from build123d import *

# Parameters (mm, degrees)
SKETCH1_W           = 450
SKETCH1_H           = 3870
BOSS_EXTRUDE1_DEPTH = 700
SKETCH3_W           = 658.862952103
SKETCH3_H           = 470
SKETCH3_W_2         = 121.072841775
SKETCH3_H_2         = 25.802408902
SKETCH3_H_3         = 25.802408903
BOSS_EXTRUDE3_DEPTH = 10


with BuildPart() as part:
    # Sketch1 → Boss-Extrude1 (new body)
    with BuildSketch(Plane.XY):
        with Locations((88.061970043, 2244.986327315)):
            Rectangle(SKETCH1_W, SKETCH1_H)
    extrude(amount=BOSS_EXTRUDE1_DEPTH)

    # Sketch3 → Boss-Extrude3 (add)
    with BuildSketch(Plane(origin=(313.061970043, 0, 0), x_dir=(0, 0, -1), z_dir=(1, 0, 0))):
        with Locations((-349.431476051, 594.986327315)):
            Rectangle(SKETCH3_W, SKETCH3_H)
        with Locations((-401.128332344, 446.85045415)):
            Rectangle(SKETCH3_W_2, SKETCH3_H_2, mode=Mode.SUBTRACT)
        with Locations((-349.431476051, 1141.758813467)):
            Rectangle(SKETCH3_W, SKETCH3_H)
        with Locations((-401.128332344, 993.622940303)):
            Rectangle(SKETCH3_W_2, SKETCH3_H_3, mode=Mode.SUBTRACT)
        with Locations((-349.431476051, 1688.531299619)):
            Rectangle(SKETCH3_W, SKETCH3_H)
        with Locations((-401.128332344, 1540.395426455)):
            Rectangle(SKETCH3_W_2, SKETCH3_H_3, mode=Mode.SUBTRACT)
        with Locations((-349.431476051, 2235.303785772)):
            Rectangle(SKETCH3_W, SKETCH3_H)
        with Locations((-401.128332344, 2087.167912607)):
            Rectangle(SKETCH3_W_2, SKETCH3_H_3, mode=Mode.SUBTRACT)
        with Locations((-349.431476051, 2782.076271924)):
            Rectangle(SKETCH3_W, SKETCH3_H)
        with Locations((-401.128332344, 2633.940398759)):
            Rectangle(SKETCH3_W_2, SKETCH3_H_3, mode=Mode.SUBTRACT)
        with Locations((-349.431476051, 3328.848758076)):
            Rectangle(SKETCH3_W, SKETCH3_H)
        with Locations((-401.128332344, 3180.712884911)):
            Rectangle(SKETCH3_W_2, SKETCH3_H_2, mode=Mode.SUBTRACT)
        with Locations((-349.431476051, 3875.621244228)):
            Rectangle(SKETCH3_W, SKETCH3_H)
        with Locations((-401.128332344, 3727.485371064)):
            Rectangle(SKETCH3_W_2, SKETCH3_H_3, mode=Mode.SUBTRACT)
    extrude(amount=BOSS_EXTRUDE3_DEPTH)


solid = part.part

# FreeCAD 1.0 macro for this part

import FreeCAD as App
import Part
import Sketcher

V = App.Vector
Q = App.Units.Quantity

doc = App.newDocument("Part")
body = doc.addObject("PartDesign::Body", "Body")

# Sketch on XY plane
sketch1 = body.newObject("Sketcher::SketchObject", "Sketch")
sketch1.AttachmentSupport = (doc.getObject("XY_Plane"), [""])
sketch1.MapMode = "FlatFace"
sketch1.addGeometry(Part.LineSegment(V(-137, 4180, 0), V(-137, 310, 0)), False)
sketch1.addGeometry(Part.LineSegment(V(-137, 310, 0), V(313, 310, 0)), False)
sketch1.addGeometry(Part.LineSegment(V(313, 310, 0), V(313, 4180, 0)), False)
sketch1.addGeometry(Part.LineSegment(V(313, 4180, 0), V(-137, 4180, 0)), False)
sketch1.addConstraint(Sketcher.Constraint("Coincident", 0, 2, 1, 1))
sketch1.addConstraint(Sketcher.Constraint("Coincident", 1, 2, 2, 1))
sketch1.addConstraint(Sketcher.Constraint("Coincident", 2, 2, 3, 1))
sketch1.addConstraint(Sketcher.Constraint("Coincident", 3, 2, 0, 1))
sketch1.addConstraint(Sketcher.Constraint("Vertical", 0))
sketch1.addConstraint(Sketcher.Constraint("Horizontal", 1))
sketch1.addConstraint(Sketcher.Constraint("Vertical", 2))
sketch1.addConstraint(Sketcher.Constraint("Horizontal", 3))
sketch1.addConstraint(Sketcher.Constraint("DistanceX", 1, 1, 1, 2, Q("450 mm")))
sketch1.addConstraint(Sketcher.Constraint("DistanceY", 0, 2, 0, 1, Q("3870 mm")))
sketch1.addConstraint(Sketcher.Constraint("DistanceX", 0, 2, -1, 1, Q("136.93803 mm")))
sketch1.addConstraint(Sketcher.Constraint("DistanceY", -1, 1, 0, 2, Q("309.986327 mm")))
pad1 = body.newObject("PartDesign::Pad", "Pad")
pad1.Profile = sketch1
pad1.Length = 700

# Sketch on YZ plane
sketch2 = body.newObject("Sketcher::SketchObject", "Sketch001")
sketch2.AttachmentSupport = (doc.getObject("YZ_Plane"), [""])
sketch2.MapMode = "FlatFace"
sketch2.AttachmentOffset = App.Placement(V(0, 0, 313.06197), App.Rotation())
sketch2.addGeometry(Part.LineSegment(V(830, 679, 0), V(360, 679, 0)), False)
sketch2.addGeometry(Part.LineSegment(V(360, 679, 0), V(360, 20, 0)), False)
sketch2.addGeometry(Part.LineSegment(V(360, 20, 0), V(830, 20, 0)), False)
sketch2.addGeometry(Part.LineSegment(V(830, 20, 0), V(830, 679, 0)), False)
sketch2.addGeometry(Part.LineSegment(V(434, 341, 0), V(434, 462, 0)), False)
sketch2.addGeometry(Part.LineSegment(V(434, 462, 0), V(460, 462, 0)), False)
sketch2.addGeometry(Part.LineSegment(V(460, 462, 0), V(460, 341, 0)), False)
sketch2.addGeometry(Part.LineSegment(V(460, 341, 0), V(434, 341, 0)), False)
sketch2.addGeometry(Part.LineSegment(V(1377, 679, 0), V(907, 679, 0)), False)
sketch2.addGeometry(Part.LineSegment(V(907, 679, 0), V(907, 20, 0)), False)
sketch2.addGeometry(Part.LineSegment(V(907, 20, 0), V(1377, 20, 0)), False)
sketch2.addGeometry(Part.LineSegment(V(1377, 20, 0), V(1377, 679, 0)), False)
sketch2.addGeometry(Part.LineSegment(V(981, 341, 0), V(981, 462, 0)), False)
sketch2.addGeometry(Part.LineSegment(V(981, 462, 0), V(1007, 462, 0)), False)
sketch2.addGeometry(Part.LineSegment(V(1007, 462, 0), V(1007, 341, 0)), False)
sketch2.addGeometry(Part.LineSegment(V(1007, 341, 0), V(981, 341, 0)), False)
sketch2.addGeometry(Part.LineSegment(V(1924, 679, 0), V(1454, 679, 0)), False)
sketch2.addGeometry(Part.LineSegment(V(1454, 679, 0), V(1454, 20, 0)), False)
sketch2.addGeometry(Part.LineSegment(V(1454, 20, 0), V(1924, 20, 0)), False)
sketch2.addGeometry(Part.LineSegment(V(1924, 20, 0), V(1924, 679, 0)), False)
sketch2.addGeometry(Part.LineSegment(V(1527, 341, 0), V(1527, 462, 0)), False)
sketch2.addGeometry(Part.LineSegment(V(1527, 462, 0), V(1553, 462, 0)), False)
sketch2.addGeometry(Part.LineSegment(V(1553, 462, 0), V(1553, 341, 0)), False)
sketch2.addGeometry(Part.LineSegment(V(1553, 341, 0), V(1527, 341, 0)), False)
sketch2.addGeometry(Part.LineSegment(V(2470, 679, 0), V(2000, 679, 0)), False)
sketch2.addGeometry(Part.LineSegment(V(2000, 679, 0), V(2000, 20, 0)), False)
sketch2.addGeometry(Part.LineSegment(V(2000, 20, 0), V(2470, 20, 0)), False)
sketch2.addGeometry(Part.LineSegment(V(2470, 20, 0), V(2470, 679, 0)), False)
sketch2.addGeometry(Part.LineSegment(V(2074, 341, 0), V(2074, 462, 0)), False)
sketch2.addGeometry(Part.LineSegment(V(2074, 462, 0), V(2100, 462, 0)), False)
sketch2.addGeometry(Part.LineSegment(V(2100, 462, 0), V(2100, 341, 0)), False)
sketch2.addGeometry(Part.LineSegment(V(2100, 341, 0), V(2074, 341, 0)), False)
sketch2.addGeometry(Part.LineSegment(V(3017, 679, 0), V(2547, 679, 0)), False)
sketch2.addGeometry(Part.LineSegment(V(2547, 679, 0), V(2547, 20, 0)), False)
sketch2.addGeometry(Part.LineSegment(V(2547, 20, 0), V(3017, 20, 0)), False)
sketch2.addGeometry(Part.LineSegment(V(3017, 20, 0), V(3017, 679, 0)), False)
sketch2.addGeometry(Part.LineSegment(V(2621, 341, 0), V(2621, 462, 0)), False)
sketch2.addGeometry(Part.LineSegment(V(2621, 462, 0), V(2647, 462, 0)), False)
sketch2.addGeometry(Part.LineSegment(V(2647, 462, 0), V(2647, 341, 0)), False)
sketch2.addGeometry(Part.LineSegment(V(2647, 341, 0), V(2621, 341, 0)), False)
sketch2.addGeometry(Part.LineSegment(V(3564, 679, 0), V(3094, 679, 0)), False)
sketch2.addGeometry(Part.LineSegment(V(3094, 679, 0), V(3094, 20, 0)), False)
sketch2.addGeometry(Part.LineSegment(V(3094, 20, 0), V(3564, 20, 0)), False)
sketch2.addGeometry(Part.LineSegment(V(3564, 20, 0), V(3564, 679, 0)), False)
sketch2.addGeometry(Part.LineSegment(V(3168, 341, 0), V(3168, 462, 0)), False)
sketch2.addGeometry(Part.LineSegment(V(3168, 462, 0), V(3194, 462, 0)), False)
sketch2.addGeometry(Part.LineSegment(V(3194, 462, 0), V(3194, 341, 0)), False)
sketch2.addGeometry(Part.LineSegment(V(3194, 341, 0), V(3168, 341, 0)), False)
sketch2.addGeometry(Part.LineSegment(V(4111, 679, 0), V(3641, 679, 0)), False)
sketch2.addGeometry(Part.LineSegment(V(3641, 679, 0), V(3641, 20, 0)), False)
sketch2.addGeometry(Part.LineSegment(V(3641, 20, 0), V(4111, 20, 0)), False)
sketch2.addGeometry(Part.LineSegment(V(4111, 20, 0), V(4111, 679, 0)), False)
sketch2.addGeometry(Part.LineSegment(V(3715, 341, 0), V(3715, 462, 0)), False)
sketch2.addGeometry(Part.LineSegment(V(3715, 462, 0), V(3740, 462, 0)), False)
sketch2.addGeometry(Part.LineSegment(V(3740, 462, 0), V(3740, 341, 0)), False)
sketch2.addGeometry(Part.LineSegment(V(3740, 341, 0), V(3715, 341, 0)), False)
sketch2.addConstraint(Sketcher.Constraint("Coincident", 0, 2, 1, 1))
sketch2.addConstraint(Sketcher.Constraint("Coincident", 1, 2, 2, 1))
sketch2.addConstraint(Sketcher.Constraint("Coincident", 2, 2, 3, 1))
sketch2.addConstraint(Sketcher.Constraint("Coincident", 3, 2, 0, 1))
sketch2.addConstraint(Sketcher.Constraint("Coincident", 4, 2, 5, 1))
sketch2.addConstraint(Sketcher.Constraint("Coincident", 5, 2, 6, 1))
sketch2.addConstraint(Sketcher.Constraint("Coincident", 6, 2, 7, 1))
sketch2.addConstraint(Sketcher.Constraint("Coincident", 7, 2, 4, 1))
sketch2.addConstraint(Sketcher.Constraint("Coincident", 8, 2, 9, 1))
sketch2.addConstraint(Sketcher.Constraint("Coincident", 9, 2, 10, 1))
sketch2.addConstraint(Sketcher.Constraint("Coincident", 10, 2, 11, 1))
sketch2.addConstraint(Sketcher.Constraint("Coincident", 11, 2, 8, 1))
sketch2.addConstraint(Sketcher.Constraint("Coincident", 12, 2, 13, 1))
sketch2.addConstraint(Sketcher.Constraint("Coincident", 13, 2, 14, 1))
sketch2.addConstraint(Sketcher.Constraint("Coincident", 14, 2, 15, 1))
sketch2.addConstraint(Sketcher.Constraint("Coincident", 15, 2, 12, 1))
sketch2.addConstraint(Sketcher.Constraint("Coincident", 16, 2, 17, 1))
sketch2.addConstraint(Sketcher.Constraint("Coincident", 17, 2, 18, 1))
sketch2.addConstraint(Sketcher.Constraint("Coincident", 18, 2, 19, 1))
sketch2.addConstraint(Sketcher.Constraint("Coincident", 19, 2, 16, 1))
sketch2.addConstraint(Sketcher.Constraint("Coincident", 20, 2, 21, 1))
sketch2.addConstraint(Sketcher.Constraint("Coincident", 21, 2, 22, 1))
sketch2.addConstraint(Sketcher.Constraint("Coincident", 22, 2, 23, 1))
sketch2.addConstraint(Sketcher.Constraint("Coincident", 23, 2, 20, 1))
sketch2.addConstraint(Sketcher.Constraint("Coincident", 24, 2, 25, 1))
sketch2.addConstraint(Sketcher.Constraint("Coincident", 25, 2, 26, 1))
sketch2.addConstraint(Sketcher.Constraint("Coincident", 26, 2, 27, 1))
sketch2.addConstraint(Sketcher.Constraint("Coincident", 27, 2, 24, 1))
sketch2.addConstraint(Sketcher.Constraint("Coincident", 28, 2, 29, 1))
sketch2.addConstraint(Sketcher.Constraint("Coincident", 29, 2, 30, 1))
sketch2.addConstraint(Sketcher.Constraint("Coincident", 30, 2, 31, 1))
sketch2.addConstraint(Sketcher.Constraint("Coincident", 31, 2, 28, 1))
sketch2.addConstraint(Sketcher.Constraint("Coincident", 32, 2, 33, 1))
sketch2.addConstraint(Sketcher.Constraint("Coincident", 33, 2, 34, 1))
sketch2.addConstraint(Sketcher.Constraint("Coincident", 34, 2, 35, 1))
sketch2.addConstraint(Sketcher.Constraint("Coincident", 35, 2, 32, 1))
sketch2.addConstraint(Sketcher.Constraint("Coincident", 36, 2, 37, 1))
sketch2.addConstraint(Sketcher.Constraint("Coincident", 37, 2, 38, 1))
sketch2.addConstraint(Sketcher.Constraint("Coincident", 38, 2, 39, 1))
sketch2.addConstraint(Sketcher.Constraint("Coincident", 39, 2, 36, 1))
sketch2.addConstraint(Sketcher.Constraint("Coincident", 40, 2, 41, 1))
sketch2.addConstraint(Sketcher.Constraint("Coincident", 41, 2, 42, 1))
sketch2.addConstraint(Sketcher.Constraint("Coincident", 42, 2, 43, 1))
sketch2.addConstraint(Sketcher.Constraint("Coincident", 43, 2, 40, 1))
sketch2.addConstraint(Sketcher.Constraint("Coincident", 44, 2, 45, 1))
sketch2.addConstraint(Sketcher.Constraint("Coincident", 45, 2, 46, 1))
sketch2.addConstraint(Sketcher.Constraint("Coincident", 46, 2, 47, 1))
sketch2.addConstraint(Sketcher.Constraint("Coincident", 47, 2, 44, 1))
sketch2.addConstraint(Sketcher.Constraint("Coincident", 48, 2, 49, 1))
sketch2.addConstraint(Sketcher.Constraint("Coincident", 49, 2, 50, 1))
sketch2.addConstraint(Sketcher.Constraint("Coincident", 50, 2, 51, 1))
sketch2.addConstraint(Sketcher.Constraint("Coincident", 51, 2, 48, 1))
sketch2.addConstraint(Sketcher.Constraint("Coincident", 52, 2, 53, 1))
sketch2.addConstraint(Sketcher.Constraint("Coincident", 53, 2, 54, 1))
sketch2.addConstraint(Sketcher.Constraint("Coincident", 54, 2, 55, 1))
sketch2.addConstraint(Sketcher.Constraint("Coincident", 55, 2, 52, 1))
sketch2.addConstraint(Sketcher.Constraint("Horizontal", 0))
sketch2.addConstraint(Sketcher.Constraint("Vertical", 1))
sketch2.addConstraint(Sketcher.Constraint("Horizontal", 2))
sketch2.addConstraint(Sketcher.Constraint("Vertical", 3))
sketch2.addConstraint(Sketcher.Constraint("Vertical", 4))
sketch2.addConstraint(Sketcher.Constraint("Horizontal", 5))
sketch2.addConstraint(Sketcher.Constraint("Vertical", 6))
sketch2.addConstraint(Sketcher.Constraint("Horizontal", 7))
sketch2.addConstraint(Sketcher.Constraint("Horizontal", 8))
sketch2.addConstraint(Sketcher.Constraint("Vertical", 9))
sketch2.addConstraint(Sketcher.Constraint("Horizontal", 10))
sketch2.addConstraint(Sketcher.Constraint("Vertical", 11))
sketch2.addConstraint(Sketcher.Constraint("Vertical", 12))
sketch2.addConstraint(Sketcher.Constraint("Horizontal", 13))
sketch2.addConstraint(Sketcher.Constraint("Vertical", 14))
sketch2.addConstraint(Sketcher.Constraint("Horizontal", 15))
sketch2.addConstraint(Sketcher.Constraint("Horizontal", 16))
sketch2.addConstraint(Sketcher.Constraint("Vertical", 17))
sketch2.addConstraint(Sketcher.Constraint("Horizontal", 18))
sketch2.addConstraint(Sketcher.Constraint("Vertical", 19))
sketch2.addConstraint(Sketcher.Constraint("Vertical", 20))
sketch2.addConstraint(Sketcher.Constraint("Horizontal", 21))
sketch2.addConstraint(Sketcher.Constraint("Vertical", 22))
sketch2.addConstraint(Sketcher.Constraint("Horizontal", 23))
sketch2.addConstraint(Sketcher.Constraint("Horizontal", 24))
sketch2.addConstraint(Sketcher.Constraint("Vertical", 25))
sketch2.addConstraint(Sketcher.Constraint("Horizontal", 26))
sketch2.addConstraint(Sketcher.Constraint("Vertical", 27))
sketch2.addConstraint(Sketcher.Constraint("Vertical", 28))
sketch2.addConstraint(Sketcher.Constraint("Horizontal", 29))
sketch2.addConstraint(Sketcher.Constraint("Vertical", 30))
sketch2.addConstraint(Sketcher.Constraint("Horizontal", 31))
sketch2.addConstraint(Sketcher.Constraint("Horizontal", 32))
sketch2.addConstraint(Sketcher.Constraint("Vertical", 33))
sketch2.addConstraint(Sketcher.Constraint("Horizontal", 34))
sketch2.addConstraint(Sketcher.Constraint("Vertical", 35))
sketch2.addConstraint(Sketcher.Constraint("Vertical", 36))
sketch2.addConstraint(Sketcher.Constraint("Horizontal", 37))
sketch2.addConstraint(Sketcher.Constraint("Vertical", 38))
sketch2.addConstraint(Sketcher.Constraint("Horizontal", 39))
sketch2.addConstraint(Sketcher.Constraint("Horizontal", 40))
sketch2.addConstraint(Sketcher.Constraint("Vertical", 41))
sketch2.addConstraint(Sketcher.Constraint("Horizontal", 42))
sketch2.addConstraint(Sketcher.Constraint("Vertical", 43))
sketch2.addConstraint(Sketcher.Constraint("Vertical", 44))
sketch2.addConstraint(Sketcher.Constraint("Horizontal", 45))
sketch2.addConstraint(Sketcher.Constraint("Vertical", 46))
sketch2.addConstraint(Sketcher.Constraint("Horizontal", 47))
sketch2.addConstraint(Sketcher.Constraint("Horizontal", 48))
sketch2.addConstraint(Sketcher.Constraint("Vertical", 49))
sketch2.addConstraint(Sketcher.Constraint("Horizontal", 50))
sketch2.addConstraint(Sketcher.Constraint("Vertical", 51))
sketch2.addConstraint(Sketcher.Constraint("Vertical", 52))
sketch2.addConstraint(Sketcher.Constraint("Horizontal", 53))
sketch2.addConstraint(Sketcher.Constraint("Vertical", 54))
sketch2.addConstraint(Sketcher.Constraint("Horizontal", 55))
sketch2.addConstraint(Sketcher.Constraint("Horizontal", 3, 2, 8, 2))
sketch2.addConstraint(Sketcher.Constraint("Horizontal", 2, 2, 9, 2))
sketch2.addConstraint(Sketcher.Constraint("Horizontal", 5, 2, 12, 2))
sketch2.addConstraint(Sketcher.Constraint("Horizontal", 7, 2, 14, 2))
sketch2.addConstraint(Sketcher.Constraint("Horizontal", 11, 2, 16, 2))
sketch2.addConstraint(Sketcher.Constraint("Horizontal", 10, 2, 17, 2))
sketch2.addConstraint(Sketcher.Constraint("Horizontal", 13, 2, 20, 2))
sketch2.addConstraint(Sketcher.Constraint("Horizontal", 15, 2, 22, 2))
sketch2.addConstraint(Sketcher.Constraint("Horizontal", 19, 2, 24, 2))
sketch2.addConstraint(Sketcher.Constraint("Horizontal", 18, 2, 25, 2))
sketch2.addConstraint(Sketcher.Constraint("Horizontal", 21, 2, 28, 2))
sketch2.addConstraint(Sketcher.Constraint("Horizontal", 23, 2, 30, 2))
sketch2.addConstraint(Sketcher.Constraint("Horizontal", 27, 2, 32, 2))
sketch2.addConstraint(Sketcher.Constraint("Horizontal", 26, 2, 33, 2))
sketch2.addConstraint(Sketcher.Constraint("Horizontal", 29, 2, 36, 2))
sketch2.addConstraint(Sketcher.Constraint("Horizontal", 31, 2, 38, 2))
sketch2.addConstraint(Sketcher.Constraint("Horizontal", 35, 2, 40, 2))
sketch2.addConstraint(Sketcher.Constraint("Horizontal", 34, 2, 41, 2))
sketch2.addConstraint(Sketcher.Constraint("Horizontal", 37, 2, 44, 2))
sketch2.addConstraint(Sketcher.Constraint("Horizontal", 39, 2, 46, 2))
sketch2.addConstraint(Sketcher.Constraint("Horizontal", 43, 2, 48, 2))
sketch2.addConstraint(Sketcher.Constraint("Horizontal", 42, 2, 49, 2))
sketch2.addConstraint(Sketcher.Constraint("Horizontal", 45, 2, 52, 2))
sketch2.addConstraint(Sketcher.Constraint("Horizontal", 47, 2, 54, 2))
sketch2.addConstraint(Sketcher.Constraint("Equal", 2, 8))
sketch2.addConstraint(Sketcher.Constraint("Equal", 7, 13))
sketch2.addConstraint(Sketcher.Constraint("Equal", 10, 16))
sketch2.addConstraint(Sketcher.Constraint("Equal", 15, 21))
sketch2.addConstraint(Sketcher.Constraint("Equal", 18, 24))
sketch2.addConstraint(Sketcher.Constraint("Equal", 23, 29))
sketch2.addConstraint(Sketcher.Constraint("Equal", 26, 32))
sketch2.addConstraint(Sketcher.Constraint("Equal", 31, 37))
sketch2.addConstraint(Sketcher.Constraint("Equal", 34, 40))
sketch2.addConstraint(Sketcher.Constraint("Equal", 39, 45))
sketch2.addConstraint(Sketcher.Constraint("Equal", 42, 48))
sketch2.addConstraint(Sketcher.Constraint("Equal", 47, 53))
sketch2.addConstraint(Sketcher.Constraint("DistanceX", 0, 2, 0, 1, Q("470 mm")))
sketch2.addConstraint(Sketcher.Constraint("DistanceY", -1, 1, 1, 2, Q("20 mm")))
sketch2.addConstraint(Sketcher.Constraint("DistanceX", 5, 1, 5, 2, Q("25.802409 mm")))
sketch2.addConstraint(Sketcher.Constraint("DistanceY", 4, 1, 4, 2, Q("121.072842 mm")))
sketch2.addConstraint(Sketcher.Constraint("DistanceX", -1, 1, 16, 2, Q("1453.5313 mm")))
sketch2.addConstraint(Sketcher.Constraint("DistanceY", 4, 2, 0, 2, Q("217.198199 mm")))
sketch2.addConstraint(Sketcher.Constraint("DistanceY", 1, 2, 1, 1, Q("658.862952 mm")))
sketch2.addConstraint(Sketcher.Constraint("DistanceX", -1, 1, 4, 2, Q("433.94925 mm")))
sketch2.addConstraint(Sketcher.Constraint("DistanceX", -1, 1, 21, 2, Q("1553.296631 mm")))
sketch2.addConstraint(Sketcher.Constraint("DistanceX", -1, 1, 28, 2, Q("2074.266708 mm")))
sketch2.addConstraint(Sketcher.Constraint("DistanceX", -1, 1, 32, 2, Q("2547.076272 mm")))
sketch2.addConstraint(Sketcher.Constraint("DistanceX", -1, 1, 40, 2, Q("3093.848758 mm")))
sketch2.addConstraint(Sketcher.Constraint("DistanceX", -1, 1, 44, 2, Q("3167.81168 mm")))
sketch2.addConstraint(Sketcher.Constraint("DistanceX", 0, 2, 5, 2, Q("99.765331 mm")))
sketch2.addConstraint(Sketcher.Constraint("DistanceX", 3, 2, 12, 2, Q("150.735409 mm")))
sketch2.addConstraint(Sketcher.Constraint("DistanceX", 8, 2, 13, 2, Q("99.765331 mm")))
sketch2.addConstraint(Sketcher.Constraint("DistanceX", 24, 2, 29, 2, Q("99.765331 mm")))
sketch2.addConstraint(Sketcher.Constraint("DistanceX", 27, 2, 36, 2, Q("150.735409 mm")))
sketch2.addConstraint(Sketcher.Constraint("DistanceX", 43, 2, 52, 2, Q("150.735409 mm")))
sketch2.addConstraint(Sketcher.Constraint("DistanceX", 48, 2, 53, 2, Q("99.765331 mm")))
pad2 = body.newObject("PartDesign::Pad", "Pad001")
pad2.Profile = sketch2
pad2.Length = 10

doc.recompute()
